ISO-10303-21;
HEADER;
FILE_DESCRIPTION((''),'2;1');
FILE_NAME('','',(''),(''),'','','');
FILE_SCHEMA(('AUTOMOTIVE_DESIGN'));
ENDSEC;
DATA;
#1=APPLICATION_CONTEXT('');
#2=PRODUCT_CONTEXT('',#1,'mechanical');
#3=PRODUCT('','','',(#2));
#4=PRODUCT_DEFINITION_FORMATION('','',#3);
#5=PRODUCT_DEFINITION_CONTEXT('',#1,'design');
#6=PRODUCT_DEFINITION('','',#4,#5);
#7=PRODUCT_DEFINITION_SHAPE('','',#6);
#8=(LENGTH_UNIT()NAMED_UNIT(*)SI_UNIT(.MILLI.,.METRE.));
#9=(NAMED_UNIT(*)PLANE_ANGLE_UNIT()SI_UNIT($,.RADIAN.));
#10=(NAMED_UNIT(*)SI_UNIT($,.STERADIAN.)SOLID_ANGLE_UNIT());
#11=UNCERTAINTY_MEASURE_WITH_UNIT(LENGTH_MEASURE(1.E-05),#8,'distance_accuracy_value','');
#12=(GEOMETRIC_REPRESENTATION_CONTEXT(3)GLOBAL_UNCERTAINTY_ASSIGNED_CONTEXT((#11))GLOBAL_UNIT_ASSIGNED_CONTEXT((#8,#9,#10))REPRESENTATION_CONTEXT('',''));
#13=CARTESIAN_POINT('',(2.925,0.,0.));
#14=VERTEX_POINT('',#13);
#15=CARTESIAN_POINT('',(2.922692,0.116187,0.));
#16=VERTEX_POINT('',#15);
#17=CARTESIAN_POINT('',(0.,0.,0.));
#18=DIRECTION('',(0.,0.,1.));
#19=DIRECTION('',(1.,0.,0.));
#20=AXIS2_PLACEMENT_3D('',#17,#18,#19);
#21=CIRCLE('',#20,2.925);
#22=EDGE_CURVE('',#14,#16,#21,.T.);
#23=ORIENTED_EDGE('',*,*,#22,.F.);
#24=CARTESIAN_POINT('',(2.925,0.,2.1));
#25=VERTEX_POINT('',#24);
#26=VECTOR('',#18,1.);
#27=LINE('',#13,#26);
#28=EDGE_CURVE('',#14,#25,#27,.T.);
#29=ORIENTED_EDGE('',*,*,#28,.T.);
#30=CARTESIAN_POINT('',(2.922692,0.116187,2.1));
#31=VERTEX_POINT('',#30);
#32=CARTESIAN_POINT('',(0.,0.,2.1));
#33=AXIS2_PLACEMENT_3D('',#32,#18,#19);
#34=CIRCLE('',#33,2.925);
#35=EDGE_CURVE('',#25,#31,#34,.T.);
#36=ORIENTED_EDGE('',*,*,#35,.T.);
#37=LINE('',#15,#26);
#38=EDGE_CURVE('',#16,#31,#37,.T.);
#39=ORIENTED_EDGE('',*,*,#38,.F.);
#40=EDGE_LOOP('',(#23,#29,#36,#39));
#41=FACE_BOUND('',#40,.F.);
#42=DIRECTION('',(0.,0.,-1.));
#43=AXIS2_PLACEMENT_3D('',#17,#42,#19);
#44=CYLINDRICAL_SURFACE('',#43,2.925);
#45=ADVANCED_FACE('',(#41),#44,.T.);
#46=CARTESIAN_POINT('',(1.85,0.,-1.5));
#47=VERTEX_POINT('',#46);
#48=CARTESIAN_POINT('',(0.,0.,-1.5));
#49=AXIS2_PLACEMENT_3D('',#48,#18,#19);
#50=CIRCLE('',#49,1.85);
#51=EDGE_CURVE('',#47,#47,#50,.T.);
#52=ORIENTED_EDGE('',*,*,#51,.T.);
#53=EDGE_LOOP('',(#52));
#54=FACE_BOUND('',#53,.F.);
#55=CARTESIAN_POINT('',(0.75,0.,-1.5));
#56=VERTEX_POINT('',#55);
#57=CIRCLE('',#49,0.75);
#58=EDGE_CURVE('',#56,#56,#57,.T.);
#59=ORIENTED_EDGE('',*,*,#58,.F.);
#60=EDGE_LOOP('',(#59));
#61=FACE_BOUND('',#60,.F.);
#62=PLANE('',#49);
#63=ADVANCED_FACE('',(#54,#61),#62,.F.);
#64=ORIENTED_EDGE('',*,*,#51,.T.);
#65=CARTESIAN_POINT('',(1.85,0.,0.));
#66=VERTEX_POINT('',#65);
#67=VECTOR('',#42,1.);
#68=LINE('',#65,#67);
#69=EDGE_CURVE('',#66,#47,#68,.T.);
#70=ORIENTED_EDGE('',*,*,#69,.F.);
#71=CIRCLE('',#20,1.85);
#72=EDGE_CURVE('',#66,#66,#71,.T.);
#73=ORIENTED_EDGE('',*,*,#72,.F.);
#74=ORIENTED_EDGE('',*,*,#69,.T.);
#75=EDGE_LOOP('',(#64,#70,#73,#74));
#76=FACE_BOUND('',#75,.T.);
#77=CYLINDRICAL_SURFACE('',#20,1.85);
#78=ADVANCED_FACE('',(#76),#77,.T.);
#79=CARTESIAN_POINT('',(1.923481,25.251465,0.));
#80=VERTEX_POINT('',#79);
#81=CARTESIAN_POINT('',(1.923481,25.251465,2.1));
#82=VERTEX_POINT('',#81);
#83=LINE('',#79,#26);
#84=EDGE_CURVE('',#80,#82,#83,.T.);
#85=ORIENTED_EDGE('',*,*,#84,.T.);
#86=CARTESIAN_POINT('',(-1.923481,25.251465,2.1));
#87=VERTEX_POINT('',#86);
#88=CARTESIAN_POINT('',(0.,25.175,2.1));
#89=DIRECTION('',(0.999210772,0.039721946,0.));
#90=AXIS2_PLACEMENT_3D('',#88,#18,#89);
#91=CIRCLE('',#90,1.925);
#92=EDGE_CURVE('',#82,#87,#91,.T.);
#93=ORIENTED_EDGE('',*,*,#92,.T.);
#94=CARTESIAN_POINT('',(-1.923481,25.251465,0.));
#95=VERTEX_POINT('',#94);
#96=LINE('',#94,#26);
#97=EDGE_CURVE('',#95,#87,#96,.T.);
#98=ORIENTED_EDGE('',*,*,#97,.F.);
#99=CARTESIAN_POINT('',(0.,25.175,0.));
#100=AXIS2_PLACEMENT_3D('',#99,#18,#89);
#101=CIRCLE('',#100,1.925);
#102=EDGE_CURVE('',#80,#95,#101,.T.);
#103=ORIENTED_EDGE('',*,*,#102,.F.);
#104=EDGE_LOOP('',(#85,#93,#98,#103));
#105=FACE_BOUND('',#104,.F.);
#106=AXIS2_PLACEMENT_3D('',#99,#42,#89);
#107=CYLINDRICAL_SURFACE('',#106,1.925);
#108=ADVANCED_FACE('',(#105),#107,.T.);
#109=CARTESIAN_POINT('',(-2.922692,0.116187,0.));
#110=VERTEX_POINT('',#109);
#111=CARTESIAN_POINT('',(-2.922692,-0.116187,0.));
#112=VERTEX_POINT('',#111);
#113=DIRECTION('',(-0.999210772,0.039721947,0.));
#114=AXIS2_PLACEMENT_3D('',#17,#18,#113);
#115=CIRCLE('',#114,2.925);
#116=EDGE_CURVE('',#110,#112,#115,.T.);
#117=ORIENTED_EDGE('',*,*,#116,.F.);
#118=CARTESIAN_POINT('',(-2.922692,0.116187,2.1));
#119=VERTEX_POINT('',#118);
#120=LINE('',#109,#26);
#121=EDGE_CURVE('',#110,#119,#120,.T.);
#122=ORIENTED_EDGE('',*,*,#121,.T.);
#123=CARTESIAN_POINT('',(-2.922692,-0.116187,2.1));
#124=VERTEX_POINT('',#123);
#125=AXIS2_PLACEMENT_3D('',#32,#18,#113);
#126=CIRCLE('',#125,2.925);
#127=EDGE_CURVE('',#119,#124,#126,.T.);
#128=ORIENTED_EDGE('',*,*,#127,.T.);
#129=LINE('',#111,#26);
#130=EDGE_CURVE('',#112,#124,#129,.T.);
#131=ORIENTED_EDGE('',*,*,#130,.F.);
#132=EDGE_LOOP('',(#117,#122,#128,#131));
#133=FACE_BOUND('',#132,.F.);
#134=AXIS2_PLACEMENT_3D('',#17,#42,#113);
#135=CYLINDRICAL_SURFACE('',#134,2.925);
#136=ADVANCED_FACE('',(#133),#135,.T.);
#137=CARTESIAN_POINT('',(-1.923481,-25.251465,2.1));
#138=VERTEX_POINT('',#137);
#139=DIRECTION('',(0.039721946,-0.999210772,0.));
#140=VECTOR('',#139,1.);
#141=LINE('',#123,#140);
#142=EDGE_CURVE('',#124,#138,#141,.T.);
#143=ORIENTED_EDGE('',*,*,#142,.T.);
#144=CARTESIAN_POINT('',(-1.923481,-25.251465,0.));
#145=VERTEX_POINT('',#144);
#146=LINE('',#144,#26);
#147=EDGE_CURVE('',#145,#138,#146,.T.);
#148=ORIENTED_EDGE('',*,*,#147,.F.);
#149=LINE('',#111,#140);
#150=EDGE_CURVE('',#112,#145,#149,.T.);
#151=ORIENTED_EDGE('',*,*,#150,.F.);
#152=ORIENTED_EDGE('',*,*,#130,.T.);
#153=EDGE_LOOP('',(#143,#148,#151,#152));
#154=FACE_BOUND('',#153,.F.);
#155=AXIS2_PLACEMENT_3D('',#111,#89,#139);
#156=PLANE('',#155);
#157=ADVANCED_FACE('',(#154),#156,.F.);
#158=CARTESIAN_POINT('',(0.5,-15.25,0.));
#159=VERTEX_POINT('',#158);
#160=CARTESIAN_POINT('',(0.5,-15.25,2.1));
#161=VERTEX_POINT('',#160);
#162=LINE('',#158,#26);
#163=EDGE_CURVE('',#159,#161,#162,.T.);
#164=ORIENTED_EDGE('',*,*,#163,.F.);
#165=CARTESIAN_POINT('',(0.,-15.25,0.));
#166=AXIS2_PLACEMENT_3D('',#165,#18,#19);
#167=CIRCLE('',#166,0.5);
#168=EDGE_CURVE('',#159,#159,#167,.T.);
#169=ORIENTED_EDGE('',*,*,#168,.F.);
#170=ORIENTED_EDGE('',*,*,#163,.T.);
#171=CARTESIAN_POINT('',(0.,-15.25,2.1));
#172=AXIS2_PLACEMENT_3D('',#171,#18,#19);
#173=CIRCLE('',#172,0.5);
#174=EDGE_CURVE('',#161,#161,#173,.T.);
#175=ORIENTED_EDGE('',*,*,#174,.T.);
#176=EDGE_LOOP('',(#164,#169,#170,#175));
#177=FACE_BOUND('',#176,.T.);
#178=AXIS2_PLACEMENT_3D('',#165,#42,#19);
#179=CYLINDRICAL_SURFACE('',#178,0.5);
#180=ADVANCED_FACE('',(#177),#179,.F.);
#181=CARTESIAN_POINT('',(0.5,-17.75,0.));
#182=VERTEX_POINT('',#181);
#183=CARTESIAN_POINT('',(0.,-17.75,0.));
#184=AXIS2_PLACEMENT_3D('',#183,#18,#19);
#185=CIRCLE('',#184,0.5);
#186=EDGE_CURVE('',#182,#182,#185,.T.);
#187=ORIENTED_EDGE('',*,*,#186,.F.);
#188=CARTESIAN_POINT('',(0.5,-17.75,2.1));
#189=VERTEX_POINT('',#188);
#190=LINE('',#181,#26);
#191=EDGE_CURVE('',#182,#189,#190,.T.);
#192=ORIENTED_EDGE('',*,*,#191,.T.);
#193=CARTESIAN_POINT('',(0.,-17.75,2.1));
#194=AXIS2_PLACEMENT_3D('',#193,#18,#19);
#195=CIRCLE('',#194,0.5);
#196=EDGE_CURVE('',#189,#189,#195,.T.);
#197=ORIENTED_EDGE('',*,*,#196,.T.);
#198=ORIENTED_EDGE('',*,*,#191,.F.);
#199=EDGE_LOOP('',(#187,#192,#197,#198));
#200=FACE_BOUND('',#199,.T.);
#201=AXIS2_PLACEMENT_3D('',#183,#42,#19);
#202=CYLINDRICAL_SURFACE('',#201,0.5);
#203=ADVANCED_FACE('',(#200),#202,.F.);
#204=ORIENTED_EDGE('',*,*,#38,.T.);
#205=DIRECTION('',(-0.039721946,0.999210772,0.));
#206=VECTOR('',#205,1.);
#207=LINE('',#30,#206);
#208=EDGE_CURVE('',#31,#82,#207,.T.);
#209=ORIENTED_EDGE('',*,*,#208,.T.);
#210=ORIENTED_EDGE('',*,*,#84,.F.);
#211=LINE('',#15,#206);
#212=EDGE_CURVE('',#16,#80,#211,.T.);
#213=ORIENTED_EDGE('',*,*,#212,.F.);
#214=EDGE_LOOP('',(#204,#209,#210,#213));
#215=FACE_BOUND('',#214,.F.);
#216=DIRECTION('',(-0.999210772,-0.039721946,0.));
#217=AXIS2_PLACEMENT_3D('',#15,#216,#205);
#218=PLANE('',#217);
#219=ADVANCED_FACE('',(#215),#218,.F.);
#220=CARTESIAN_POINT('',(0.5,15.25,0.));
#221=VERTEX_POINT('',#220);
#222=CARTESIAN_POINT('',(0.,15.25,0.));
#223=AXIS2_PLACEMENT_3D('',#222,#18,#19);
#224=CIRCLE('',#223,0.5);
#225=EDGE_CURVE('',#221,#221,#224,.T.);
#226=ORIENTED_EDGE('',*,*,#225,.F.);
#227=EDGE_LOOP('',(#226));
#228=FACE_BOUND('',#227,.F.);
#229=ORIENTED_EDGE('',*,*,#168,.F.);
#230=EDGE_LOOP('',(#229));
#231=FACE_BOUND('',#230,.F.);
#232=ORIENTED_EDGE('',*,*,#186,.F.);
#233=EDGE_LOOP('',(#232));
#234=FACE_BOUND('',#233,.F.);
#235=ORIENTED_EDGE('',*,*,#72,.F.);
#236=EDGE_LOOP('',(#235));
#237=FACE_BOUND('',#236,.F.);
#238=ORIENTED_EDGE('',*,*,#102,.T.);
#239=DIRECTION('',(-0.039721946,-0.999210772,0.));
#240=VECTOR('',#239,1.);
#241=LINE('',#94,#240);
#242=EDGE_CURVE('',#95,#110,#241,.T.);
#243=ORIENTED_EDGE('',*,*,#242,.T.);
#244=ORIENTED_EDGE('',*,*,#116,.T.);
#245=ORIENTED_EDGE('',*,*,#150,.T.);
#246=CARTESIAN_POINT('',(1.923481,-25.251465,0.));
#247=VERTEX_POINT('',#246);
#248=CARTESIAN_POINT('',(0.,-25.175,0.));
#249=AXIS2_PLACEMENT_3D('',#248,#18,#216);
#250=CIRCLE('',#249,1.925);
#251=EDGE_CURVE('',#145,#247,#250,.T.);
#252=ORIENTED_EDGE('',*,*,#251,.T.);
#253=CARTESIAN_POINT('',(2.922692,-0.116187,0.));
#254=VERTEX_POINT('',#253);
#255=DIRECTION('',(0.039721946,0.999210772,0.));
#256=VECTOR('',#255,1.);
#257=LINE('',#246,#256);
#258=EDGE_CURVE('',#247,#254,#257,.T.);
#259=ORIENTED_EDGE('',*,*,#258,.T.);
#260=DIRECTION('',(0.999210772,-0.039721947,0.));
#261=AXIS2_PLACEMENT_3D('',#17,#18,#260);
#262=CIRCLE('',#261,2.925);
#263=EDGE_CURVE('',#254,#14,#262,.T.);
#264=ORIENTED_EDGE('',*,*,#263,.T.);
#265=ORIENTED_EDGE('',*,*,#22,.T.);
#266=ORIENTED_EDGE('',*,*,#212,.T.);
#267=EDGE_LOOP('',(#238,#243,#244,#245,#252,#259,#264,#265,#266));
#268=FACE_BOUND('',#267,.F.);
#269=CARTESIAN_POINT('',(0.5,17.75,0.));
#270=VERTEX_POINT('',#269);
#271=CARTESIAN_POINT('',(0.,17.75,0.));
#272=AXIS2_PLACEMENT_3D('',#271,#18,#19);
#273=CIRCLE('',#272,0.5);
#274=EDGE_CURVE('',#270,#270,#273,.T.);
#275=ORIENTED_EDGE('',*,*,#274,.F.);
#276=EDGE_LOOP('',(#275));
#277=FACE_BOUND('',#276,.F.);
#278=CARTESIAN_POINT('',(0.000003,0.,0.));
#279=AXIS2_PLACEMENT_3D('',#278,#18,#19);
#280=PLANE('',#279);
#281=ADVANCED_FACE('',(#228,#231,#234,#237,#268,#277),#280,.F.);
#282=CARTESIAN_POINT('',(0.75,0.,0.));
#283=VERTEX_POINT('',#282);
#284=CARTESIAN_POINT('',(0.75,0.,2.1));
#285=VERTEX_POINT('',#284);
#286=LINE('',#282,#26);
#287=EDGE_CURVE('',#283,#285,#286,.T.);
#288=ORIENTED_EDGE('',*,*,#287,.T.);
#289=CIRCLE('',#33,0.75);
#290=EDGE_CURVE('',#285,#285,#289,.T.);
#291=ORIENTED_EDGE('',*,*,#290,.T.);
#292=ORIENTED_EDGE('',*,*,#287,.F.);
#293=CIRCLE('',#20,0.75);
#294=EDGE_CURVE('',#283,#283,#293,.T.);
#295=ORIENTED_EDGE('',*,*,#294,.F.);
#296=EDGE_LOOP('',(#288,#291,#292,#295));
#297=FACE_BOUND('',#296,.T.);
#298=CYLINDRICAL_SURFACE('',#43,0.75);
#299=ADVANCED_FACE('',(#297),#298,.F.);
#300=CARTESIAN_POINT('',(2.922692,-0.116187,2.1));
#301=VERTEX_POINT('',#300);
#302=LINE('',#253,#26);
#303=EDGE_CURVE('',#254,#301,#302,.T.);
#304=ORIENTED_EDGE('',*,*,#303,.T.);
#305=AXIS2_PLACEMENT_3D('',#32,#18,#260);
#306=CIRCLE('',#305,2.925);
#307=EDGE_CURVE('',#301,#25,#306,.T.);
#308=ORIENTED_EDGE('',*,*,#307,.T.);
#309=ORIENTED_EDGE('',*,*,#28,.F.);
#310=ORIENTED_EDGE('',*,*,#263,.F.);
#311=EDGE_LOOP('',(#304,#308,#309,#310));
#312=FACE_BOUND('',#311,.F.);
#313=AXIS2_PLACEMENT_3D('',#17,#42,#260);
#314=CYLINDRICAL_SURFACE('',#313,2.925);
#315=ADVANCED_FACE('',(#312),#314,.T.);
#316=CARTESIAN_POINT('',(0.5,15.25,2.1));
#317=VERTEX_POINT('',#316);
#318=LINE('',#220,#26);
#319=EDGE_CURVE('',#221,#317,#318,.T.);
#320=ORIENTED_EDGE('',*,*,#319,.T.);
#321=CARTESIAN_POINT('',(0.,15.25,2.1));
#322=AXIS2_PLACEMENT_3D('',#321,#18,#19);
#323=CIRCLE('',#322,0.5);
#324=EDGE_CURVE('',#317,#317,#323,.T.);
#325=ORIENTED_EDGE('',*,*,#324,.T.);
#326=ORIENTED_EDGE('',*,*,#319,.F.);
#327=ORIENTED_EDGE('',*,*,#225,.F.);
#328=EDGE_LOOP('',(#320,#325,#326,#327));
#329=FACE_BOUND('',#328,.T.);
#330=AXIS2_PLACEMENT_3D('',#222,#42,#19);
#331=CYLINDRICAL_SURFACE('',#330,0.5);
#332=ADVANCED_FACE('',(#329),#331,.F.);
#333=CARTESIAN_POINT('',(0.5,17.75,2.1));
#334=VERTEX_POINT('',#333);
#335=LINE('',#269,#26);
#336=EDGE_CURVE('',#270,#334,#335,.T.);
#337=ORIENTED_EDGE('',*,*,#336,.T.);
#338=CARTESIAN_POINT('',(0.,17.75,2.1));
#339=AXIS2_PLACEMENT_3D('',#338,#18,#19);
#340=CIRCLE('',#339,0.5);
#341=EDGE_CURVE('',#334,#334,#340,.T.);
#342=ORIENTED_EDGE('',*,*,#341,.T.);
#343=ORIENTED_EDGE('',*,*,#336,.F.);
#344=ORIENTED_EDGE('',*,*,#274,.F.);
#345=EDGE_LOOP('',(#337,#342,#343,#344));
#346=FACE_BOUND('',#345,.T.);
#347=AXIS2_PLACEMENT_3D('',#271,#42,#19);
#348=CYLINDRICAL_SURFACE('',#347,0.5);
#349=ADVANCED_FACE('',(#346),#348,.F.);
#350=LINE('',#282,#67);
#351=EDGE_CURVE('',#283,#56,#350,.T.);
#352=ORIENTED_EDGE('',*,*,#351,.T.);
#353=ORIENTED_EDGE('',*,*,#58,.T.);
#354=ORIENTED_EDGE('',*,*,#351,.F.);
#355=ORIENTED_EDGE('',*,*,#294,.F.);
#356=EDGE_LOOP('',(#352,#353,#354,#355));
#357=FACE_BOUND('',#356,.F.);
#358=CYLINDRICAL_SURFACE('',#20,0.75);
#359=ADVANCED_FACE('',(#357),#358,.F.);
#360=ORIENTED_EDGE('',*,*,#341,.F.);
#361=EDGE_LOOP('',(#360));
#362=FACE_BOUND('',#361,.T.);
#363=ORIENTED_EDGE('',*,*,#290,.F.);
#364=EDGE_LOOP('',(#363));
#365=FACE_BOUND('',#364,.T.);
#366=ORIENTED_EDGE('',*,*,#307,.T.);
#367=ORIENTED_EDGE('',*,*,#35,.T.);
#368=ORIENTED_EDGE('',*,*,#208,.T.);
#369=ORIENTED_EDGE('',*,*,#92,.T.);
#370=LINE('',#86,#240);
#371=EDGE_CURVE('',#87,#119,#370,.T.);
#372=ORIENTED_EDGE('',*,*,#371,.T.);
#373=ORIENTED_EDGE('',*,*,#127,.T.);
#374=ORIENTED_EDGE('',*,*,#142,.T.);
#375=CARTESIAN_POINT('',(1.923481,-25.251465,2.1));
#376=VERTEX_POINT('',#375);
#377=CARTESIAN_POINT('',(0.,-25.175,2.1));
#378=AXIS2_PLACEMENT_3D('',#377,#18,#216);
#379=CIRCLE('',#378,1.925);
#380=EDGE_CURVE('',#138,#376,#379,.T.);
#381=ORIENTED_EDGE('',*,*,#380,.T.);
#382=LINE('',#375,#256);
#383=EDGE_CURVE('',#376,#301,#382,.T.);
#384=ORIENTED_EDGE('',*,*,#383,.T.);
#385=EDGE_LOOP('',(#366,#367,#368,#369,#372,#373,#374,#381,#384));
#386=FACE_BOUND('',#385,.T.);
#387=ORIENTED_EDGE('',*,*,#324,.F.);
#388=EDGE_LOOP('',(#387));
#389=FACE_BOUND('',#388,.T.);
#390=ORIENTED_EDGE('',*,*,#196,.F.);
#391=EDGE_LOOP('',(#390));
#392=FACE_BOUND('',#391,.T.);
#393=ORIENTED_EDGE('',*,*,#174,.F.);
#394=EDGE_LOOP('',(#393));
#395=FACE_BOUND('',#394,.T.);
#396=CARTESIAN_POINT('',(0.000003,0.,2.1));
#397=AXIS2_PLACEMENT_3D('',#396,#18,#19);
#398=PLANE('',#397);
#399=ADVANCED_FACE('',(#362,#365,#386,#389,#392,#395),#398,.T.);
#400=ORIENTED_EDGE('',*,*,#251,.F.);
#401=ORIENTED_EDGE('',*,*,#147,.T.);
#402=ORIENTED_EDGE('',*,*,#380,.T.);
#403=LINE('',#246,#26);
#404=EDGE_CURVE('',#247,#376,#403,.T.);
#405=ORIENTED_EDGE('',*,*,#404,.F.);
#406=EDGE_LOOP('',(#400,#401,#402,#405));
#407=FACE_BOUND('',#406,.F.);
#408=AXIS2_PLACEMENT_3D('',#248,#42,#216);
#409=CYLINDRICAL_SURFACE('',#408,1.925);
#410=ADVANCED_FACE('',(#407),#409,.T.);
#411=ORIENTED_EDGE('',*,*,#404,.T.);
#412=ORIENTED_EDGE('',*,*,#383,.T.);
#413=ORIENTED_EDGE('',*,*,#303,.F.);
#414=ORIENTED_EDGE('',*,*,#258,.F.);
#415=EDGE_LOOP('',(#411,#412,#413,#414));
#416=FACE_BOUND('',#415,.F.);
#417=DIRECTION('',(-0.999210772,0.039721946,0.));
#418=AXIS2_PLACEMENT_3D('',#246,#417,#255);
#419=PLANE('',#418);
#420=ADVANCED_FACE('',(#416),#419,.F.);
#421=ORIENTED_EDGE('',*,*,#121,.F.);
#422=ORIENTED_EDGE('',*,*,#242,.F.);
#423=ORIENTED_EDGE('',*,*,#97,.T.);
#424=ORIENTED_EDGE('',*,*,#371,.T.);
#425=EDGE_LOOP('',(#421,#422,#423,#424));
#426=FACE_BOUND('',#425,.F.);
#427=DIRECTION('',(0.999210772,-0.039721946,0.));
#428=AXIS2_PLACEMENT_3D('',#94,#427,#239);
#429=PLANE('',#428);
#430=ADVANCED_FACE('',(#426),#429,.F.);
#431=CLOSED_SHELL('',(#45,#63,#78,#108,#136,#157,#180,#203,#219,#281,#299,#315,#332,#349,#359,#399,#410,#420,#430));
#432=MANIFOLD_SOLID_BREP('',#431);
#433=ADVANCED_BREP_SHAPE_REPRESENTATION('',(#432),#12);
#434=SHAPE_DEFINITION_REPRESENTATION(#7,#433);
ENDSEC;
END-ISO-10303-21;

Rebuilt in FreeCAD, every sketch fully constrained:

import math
import FreeCAD as App
import Part
import Sketcher
from FreeCAD import Vector

doc = App.newDocument("Part")
body = doc.addObject("PartDesign::Body", "Body")

sketch1 = body.newObject("Sketcher::SketchObject", "Sketch")
sketch1.AttachmentSupport = (doc.getObject("XY_Plane"), [""])
sketch1.MapMode = "FlatFace"
sketch1.addGeometry([
    Part.ArcOfCircle(Part.Circle(Vector(0, 0, 0), Vector(0, 0, 1), 2.92), math.radians(-2.28), math.radians(0)),
    Part.ArcOfCircle(Part.Circle(Vector(0, 0, 0), Vector(0, 0, 1), 2.92), math.radians(0), math.radians(2.28)),
    Part.LineSegment(Vector(2.92, 0.12, 0), Vector(1.92, 25.25, 0)),
    Part.ArcOfCircle(Part.Circle(Vector(0, 25.18, 0), Vector(0, 0, 1), 1.93), math.radians(2), math.radians(178)),
    Part.LineSegment(Vector(-1.92, 25.25, 0), Vector(-2.92, 0.12, 0)),
    Part.ArcOfCircle(Part.Circle(Vector(0, 0, 0), Vector(0, 0, 1), 2.92), math.radians(177.72), math.radians(182.28)),
    Part.LineSegment(Vector(-2.92, -0.12, 0), Vector(-1.92, -25.25, 0)),
    Part.ArcOfCircle(Part.Circle(Vector(0, -25.18, 0), Vector(0, 0, 1), 1.93), math.radians(-178), math.radians(-2)),
    Part.LineSegment(Vector(1.92, -25.25, 0), Vector(2.92, -0.12, 0)),
    Part.Circle(Vector(0, -17.75, 0), Vector(0, 0, 1), 0.5),
    Part.Circle(Vector(0, -15.25, 0), Vector(0, 0, 1), 0.5),
    Part.Circle(Vector(0, 0, 0), Vector(0, 0, 1), 0.75),
    Part.Circle(Vector(0, 15.25, 0), Vector(0, 0, 1), 0.5),
    Part.Circle(Vector(0, 17.75, 0), Vector(0, 0, 1), 0.5),
], False)
sketch1.addConstraint([
    Sketcher.Constraint("Tangent", 0, 2, 1, 1),
    Sketcher.Constraint("Tangent", 1, 2, 2, 1),
    Sketcher.Constraint("Tangent", 2, 2, 3, 1),
    Sketcher.Constraint("Tangent", 3, 2, 4, 1),
    Sketcher.Constraint("Tangent", 4, 2, 5, 1),
    Sketcher.Constraint("Tangent", 5, 2, 6, 1),
    Sketcher.Constraint("Tangent", 6, 2, 7, 1),
    Sketcher.Constraint("Tangent", 7, 2, 8, 1),
    Sketcher.Constraint("Tangent", 8, 2, 0, 1),
    Sketcher.Constraint("Coincident", 0, 3, -1, 1),
    Sketcher.Constraint("Coincident", 5, 3, -1, 1),
    Sketcher.Constraint("Coincident", 11, 3, -1, 1),
    Sketcher.Constraint("Equal", 0, 1),
    Sketcher.Constraint("Equal", 1, 5),
    Sketcher.Constraint("Equal", 3, 7),
    Sketcher.Constraint("Equal", 9, 10),
    Sketcher.Constraint("Equal", 10, 12),
    Sketcher.Constraint("Equal", 12, 13),
    Sketcher.Constraint("Symmetric", 3, 3, 7, 3, -1, 1),
    Sketcher.Constraint("Symmetric", 10, 3, 12, 3, -1, 1),
    Sketcher.Constraint("Symmetric", 9, 3, 13, 3, -1, 1),
    Sketcher.Constraint("PointOnObject", 3, 3, -2),
    Sketcher.Constraint("PointOnObject", 9, 3, -2),
    Sketcher.Constraint("PointOnObject", 10, 3, -2),
    Sketcher.Constraint("PointOnObject", 0, 2, -1),
    Sketcher.Constraint("Diameter", 9, 1.0),
    Sketcher.Constraint("Diameter", 11, 1.5),
    Sketcher.Constraint("Radius", 0, 2.925),
    Sketcher.Constraint("Radius", 3, 1.925),
    Sketcher.Constraint("DistanceY", 9, 3, 10, 3, 2.5),
    Sketcher.Constraint("DistanceY", 9, 3, -1, 1, 17.75),
    Sketcher.Constraint("DistanceY", 7, 3, 3, 3, 50.35),
])
pad1 = body.newObject("PartDesign::Pad", "Pad")
pad1.Profile = sketch1
pad1.Length = 2.1

sketch2 = body.newObject("Sketcher::SketchObject", "Sketch001")
sketch2.AttachmentSupport = (doc.getObject("XY_Plane"), [""])
sketch2.MapMode = "FlatFace"
sketch2.addGeometry([
    Part.Circle(Vector(0, 0, 0), Vector(0, 0, 1), 1.9),
    Part.Circle(Vector(0, 0, 0), Vector(0, 0, 1), 0.8),
], False)
sketch2.addConstraint([
    Sketcher.Constraint("Coincident", 0, 3, -1, 1),
    Sketcher.Constraint("Coincident", 1, 3, -1, 1),
    Sketcher.Constraint("Diameter", 0, 3.7),
    Sketcher.Constraint("Diameter", 1, 1.5),
])
pad2 = body.newObject("PartDesign::Pad", "Pad001")
pad2.Profile = sketch2
pad2.Length = 1.5
pad2.Reversed = True

doc.recompute()
